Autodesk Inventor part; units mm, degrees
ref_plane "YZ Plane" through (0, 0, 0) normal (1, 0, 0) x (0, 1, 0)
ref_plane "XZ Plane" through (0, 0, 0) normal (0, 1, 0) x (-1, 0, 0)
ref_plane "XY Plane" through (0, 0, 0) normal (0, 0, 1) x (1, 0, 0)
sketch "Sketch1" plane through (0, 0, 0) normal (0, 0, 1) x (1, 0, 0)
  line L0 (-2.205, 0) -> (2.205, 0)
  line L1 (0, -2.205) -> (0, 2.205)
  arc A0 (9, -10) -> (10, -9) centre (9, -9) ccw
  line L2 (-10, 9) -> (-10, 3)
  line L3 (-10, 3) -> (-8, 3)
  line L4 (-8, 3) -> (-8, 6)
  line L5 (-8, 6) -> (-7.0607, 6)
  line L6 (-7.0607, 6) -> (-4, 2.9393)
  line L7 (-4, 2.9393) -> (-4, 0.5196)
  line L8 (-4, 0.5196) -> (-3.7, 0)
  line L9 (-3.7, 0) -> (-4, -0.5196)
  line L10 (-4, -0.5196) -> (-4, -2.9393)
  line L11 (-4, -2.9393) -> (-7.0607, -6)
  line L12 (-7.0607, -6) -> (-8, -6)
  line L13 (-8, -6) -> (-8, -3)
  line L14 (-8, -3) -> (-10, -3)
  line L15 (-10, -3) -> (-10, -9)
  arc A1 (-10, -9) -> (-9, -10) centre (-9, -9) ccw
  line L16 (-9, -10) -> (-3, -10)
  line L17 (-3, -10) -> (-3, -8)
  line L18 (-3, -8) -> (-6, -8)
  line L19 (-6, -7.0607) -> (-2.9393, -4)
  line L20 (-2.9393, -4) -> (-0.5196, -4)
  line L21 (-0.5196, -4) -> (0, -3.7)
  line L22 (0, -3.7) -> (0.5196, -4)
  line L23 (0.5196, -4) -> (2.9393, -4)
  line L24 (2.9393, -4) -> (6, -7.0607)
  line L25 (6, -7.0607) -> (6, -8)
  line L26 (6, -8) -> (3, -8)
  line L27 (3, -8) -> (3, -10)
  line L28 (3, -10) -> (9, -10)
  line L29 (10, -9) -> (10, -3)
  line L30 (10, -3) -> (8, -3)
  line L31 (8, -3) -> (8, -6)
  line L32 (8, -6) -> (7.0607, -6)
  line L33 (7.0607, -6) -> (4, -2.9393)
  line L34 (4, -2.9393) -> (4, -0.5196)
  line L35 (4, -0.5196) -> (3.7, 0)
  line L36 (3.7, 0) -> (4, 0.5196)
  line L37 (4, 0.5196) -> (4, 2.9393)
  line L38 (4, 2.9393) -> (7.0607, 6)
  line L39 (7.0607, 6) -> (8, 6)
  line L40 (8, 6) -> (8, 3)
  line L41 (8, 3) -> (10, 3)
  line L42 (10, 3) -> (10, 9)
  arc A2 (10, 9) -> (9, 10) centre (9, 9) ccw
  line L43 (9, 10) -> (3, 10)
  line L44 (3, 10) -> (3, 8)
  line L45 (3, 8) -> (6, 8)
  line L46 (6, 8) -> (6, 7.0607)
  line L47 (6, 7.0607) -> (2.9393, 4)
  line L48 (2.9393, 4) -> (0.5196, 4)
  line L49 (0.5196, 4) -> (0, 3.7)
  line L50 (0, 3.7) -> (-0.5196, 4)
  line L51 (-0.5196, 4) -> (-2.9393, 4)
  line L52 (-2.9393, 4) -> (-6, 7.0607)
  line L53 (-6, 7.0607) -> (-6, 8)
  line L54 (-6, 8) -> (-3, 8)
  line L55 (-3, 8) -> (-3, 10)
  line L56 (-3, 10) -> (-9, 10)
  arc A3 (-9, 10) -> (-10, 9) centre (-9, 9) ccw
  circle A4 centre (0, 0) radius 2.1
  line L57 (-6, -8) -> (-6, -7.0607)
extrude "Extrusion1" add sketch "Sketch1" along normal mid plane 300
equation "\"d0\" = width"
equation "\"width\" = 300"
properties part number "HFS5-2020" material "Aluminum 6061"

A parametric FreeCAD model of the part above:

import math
import FreeCAD as App
import Part
import Sketcher
Q = App.Units.Quantity

doc = App.newDocument("Part")
body = doc.addObject("PartDesign::Body", "Body")

sketch1 = body.newObject("Sketcher::SketchObject", "Sketch")
sketch1.AttachmentSupport = (doc.getObject("XY_Plane"), [""])
sketch1.MapMode = "FlatFace"
sketch1.addGeometry([
    Part.LineSegment(App.Vector(3, -10, 0), App.Vector(9, -10, 0)),
    Part.ArcOfCircle(Part.Circle(App.Vector(9, -9, 0), App.Vector(0, 0, 1), 1), math.radians(-90), math.radians(0)),
    Part.LineSegment(App.Vector(10, -9, 0), App.Vector(10, -3, 0)),
    Part.LineSegment(App.Vector(10, -3, 0), App.Vector(8, -3, 0)),
    Part.LineSegment(App.Vector(8, -3, 0), App.Vector(8, -6, 0)),
    Part.LineSegment(App.Vector(8, -6, 0), App.Vector(7.1, -6, 0)),
    Part.LineSegment(App.Vector(7.1, -6, 0), App.Vector(4, -2.9, 0)),
    Part.LineSegment(App.Vector(4, -2.9, 0), App.Vector(4, -0.5, 0)),
    Part.LineSegment(App.Vector(4, -0.5, 0), App.Vector(3.7, 0, 0)),
    Part.LineSegment(App.Vector(3.7, 0, 0), App.Vector(4, 0.5, 0)),
    Part.LineSegment(App.Vector(4, 0.5, 0), App.Vector(4, 2.9, 0)),
    Part.LineSegment(App.Vector(4, 2.9, 0), App.Vector(7.1, 6, 0)),
    Part.LineSegment(App.Vector(7.1, 6, 0), App.Vector(8, 6, 0)),
    Part.LineSegment(App.Vector(8, 6, 0), App.Vector(8, 3, 0)),
    Part.LineSegment(App.Vector(8, 3, 0), App.Vector(10, 3, 0)),
    Part.LineSegment(App.Vector(10, 3, 0), App.Vector(10, 9, 0)),
    Part.ArcOfCircle(Part.Circle(App.Vector(9, 9, 0), App.Vector(0, 0, 1), 1), math.radians(0), math.radians(90)),
    Part.LineSegment(App.Vector(9, 10, 0), App.Vector(3, 10, 0)),
    Part.LineSegment(App.Vector(3, 10, 0), App.Vector(3, 8, 0)),
    Part.LineSegment(App.Vector(3, 8, 0), App.Vector(6, 8, 0)),
    Part.LineSegment(App.Vector(6, 8, 0), App.Vector(6, 7.1, 0)),
    Part.LineSegment(App.Vector(6, 7.1, 0), App.Vector(2.9, 4, 0)),
    Part.LineSegment(App.Vector(2.9, 4, 0), App.Vector(0.5, 4, 0)),
    Part.LineSegment(App.Vector(0.5, 4, 0), App.Vector(0, 3.7, 0)),
    Part.LineSegment(App.Vector(0, 3.7, 0), App.Vector(-0.5, 4, 0)),
    Part.LineSegment(App.Vector(-0.5, 4, 0), App.Vector(-2.9, 4, 0)),
    Part.LineSegment(App.Vector(-2.9, 4, 0), App.Vector(-6, 7.1, 0)),
    Part.LineSegment(App.Vector(-6, 7.1, 0), App.Vector(-6, 8, 0)),
    Part.LineSegment(App.Vector(-6, 8, 0), App.Vector(-3, 8, 0)),
    Part.LineSegment(App.Vector(-3, 8, 0), App.Vector(-3, 10, 0)),
    Part.LineSegment(App.Vector(-3, 10, 0), App.Vector(-9, 10, 0)),
    Part.ArcOfCircle(Part.Circle(App.Vector(-9, 9, 0), App.Vector(0, 0, 1), 1), math.radians(90), math.radians(180)),
    Part.LineSegment(App.Vector(-10, 9, 0), App.Vector(-10, 3, 0)),
    Part.LineSegment(App.Vector(-10, 3, 0), App.Vector(-8, 3, 0)),
    Part.LineSegment(App.Vector(-8, 3, 0), App.Vector(-8, 6, 0)),
    Part.LineSegment(App.Vector(-8, 6, 0), App.Vector(-7.1, 6, 0)),
    Part.LineSegment(App.Vector(-7.1, 6, 0), App.Vector(-4, 2.9, 0)),
    Part.LineSegment(App.Vector(-4, 2.9, 0), App.Vector(-4, 0.5, 0)),
    Part.LineSegment(App.Vector(-4, 0.5, 0), App.Vector(-3.7, 0, 0)),
    Part.LineSegment(App.Vector(-3.7, 0, 0), App.Vector(-4, -0.5, 0)),
    Part.LineSegment(App.Vector(-4, -0.5, 0), App.Vector(-4, -2.9, 0)),
    Part.LineSegment(App.Vector(-4, -2.9, 0), App.Vector(-7.1, -6, 0)),
    Part.LineSegment(App.Vector(-7.1, -6, 0), App.Vector(-8, -6, 0)),
    Part.LineSegment(App.Vector(-8, -6, 0), App.Vector(-8, -3, 0)),
    Part.LineSegment(App.Vector(-8, -3, 0), App.Vector(-10, -3, 0)),
    Part.LineSegment(App.Vector(-10, -3, 0), App.Vector(-10, -9, 0)),
    Part.ArcOfCircle(Part.Circle(App.Vector(-9, -9, 0), App.Vector(0, 0, 1), 1), math.radians(180), math.radians(270)),
    Part.LineSegment(App.Vector(-9, -10, 0), App.Vector(-3, -10, 0)),
    Part.LineSegment(App.Vector(-3, -10, 0), App.Vector(-3, -8, 0)),
    Part.LineSegment(App.Vector(-3, -8, 0), App.Vector(-6, -8, 0)),
    Part.LineSegment(App.Vector(-6, -8, 0), App.Vector(-6, -7.1, 0)),
    Part.LineSegment(App.Vector(-6, -7.1, 0), App.Vector(-2.9, -4, 0)),
    Part.LineSegment(App.Vector(-2.9, -4, 0), App.Vector(-0.5, -4, 0)),
    Part.LineSegment(App.Vector(-0.5, -4, 0), App.Vector(0, -3.7, 0)),
    Part.LineSegment(App.Vector(0, -3.7, 0), App.Vector(0.5, -4, 0)),
    Part.LineSegment(App.Vector(0.5, -4, 0), App.Vector(2.9, -4, 0)),
    Part.LineSegment(App.Vector(2.9, -4, 0), App.Vector(6, -7.1, 0)),
    Part.LineSegment(App.Vector(6, -7.1, 0), App.Vector(6, -8, 0)),
    Part.LineSegment(App.Vector(6, -8, 0), App.Vector(3, -8, 0)),
    Part.LineSegment(App.Vector(3, -8, 0), App.Vector(3, -10, 0)),
    Part.Circle(App.Vector(0, 0, 0), App.Vector(0, 0, 1), 2.1),
], False)
sketch1.addConstraint([
    Sketcher.Constraint("Tangent", 0, 2, 1, 1),
    Sketcher.Constraint("Tangent", 1, 2, 2, 1),
    Sketcher.Constraint("Coincident", 2, 2, 3, 1),
    Sketcher.Constraint("Coincident", 3, 2, 4, 1),
    Sketcher.Constraint("Coincident", 4, 2, 5, 1),
    Sketcher.Constraint("Coincident", 5, 2, 6, 1),
    Sketcher.Constraint("Coincident", 6, 2, 7, 1),
    Sketcher.Constraint("Coincident", 7, 2, 8, 1),
    Sketcher.Constraint("Coincident", 8, 2, 9, 1),
    Sketcher.Constraint("Coincident", 9, 2, 10, 1),
    Sketcher.Constraint("Coincident", 10, 2, 11, 1),
    Sketcher.Constraint("Coincident", 11, 2, 12, 1),
    Sketcher.Constraint("Coincident", 12, 2, 13, 1),
    Sketcher.Constraint("Coincident", 13, 2, 14, 1),
    Sketcher.Constraint("Coincident", 14, 2, 15, 1),
    Sketcher.Constraint("Tangent", 15, 2, 16, 1),
    Sketcher.Constraint("Tangent", 16, 2, 17, 1),
    Sketcher.Constraint("Coincident", 17, 2, 18, 1),
    Sketcher.Constraint("Coincident", 18, 2, 19, 1),
    Sketcher.Constraint("Coincident", 19, 2, 20, 1),
    Sketcher.Constraint("Coincident", 20, 2, 21, 1),
    Sketcher.Constraint("Coincident", 21, 2, 22, 1),
    Sketcher.Constraint("Coincident", 22, 2, 23, 1),
    Sketcher.Constraint("Coincident", 23, 2, 24, 1),
    Sketcher.Constraint("Coincident", 24, 2, 25, 1),
    Sketcher.Constraint("Coincident", 25, 2, 26, 1),
    Sketcher.Constraint("Coincident", 26, 2, 27, 1),
    Sketcher.Constraint("Coincident", 27, 2, 28, 1),
    Sketcher.Constraint("Coincident", 28, 2, 29, 1),
    Sketcher.Constraint("Coincident", 29, 2, 30, 1),
    Sketcher.Constraint("Tangent", 30, 2, 31, 1),
    Sketcher.Constraint("Tangent", 31, 2, 32, 1),
    Sketcher.Constraint("Coincident", 32, 2, 33, 1),
    Sketcher.Constraint("Coincident", 33, 2, 34, 1),
    Sketcher.Constraint("Coincident", 34, 2, 35, 1),
    Sketcher.Constraint("Coincident", 35, 2, 36, 1),
    Sketcher.Constraint("Coincident", 36, 2, 37, 1),
    Sketcher.Constraint("Coincident", 37, 2, 38, 1),
    Sketcher.Constraint("Coincident", 38, 2, 39, 1),
    Sketcher.Constraint("Coincident", 39, 2, 40, 1),
    Sketcher.Constraint("Coincident", 40, 2, 41, 1),
    Sketcher.Constraint("Coincident", 41, 2, 42, 1),
    Sketcher.Constraint("Coincident", 42, 2, 43, 1),
    Sketcher.Constraint("Coincident", 43, 2, 44, 1),
    Sketcher.Constraint("Coincident", 44, 2, 45, 1),
    Sketcher.Constraint("Tangent", 45, 2, 46, 1),
    Sketcher.Constraint("Tangent", 46, 2, 47, 1),
    Sketcher.Constraint("Coincident", 47, 2, 48, 1),
    Sketcher.Constraint("Coincident", 48, 2, 49, 1),
    Sketcher.Constraint("Coincident", 49, 2, 50, 1),
    Sketcher.Constraint("Coincident", 50, 2, 51, 1),
    Sketcher.Constraint("Coincident", 51, 2, 52, 1),
    Sketcher.Constraint("Coincident", 52, 2, 53, 1),
    Sketcher.Constraint("Coincident", 53, 2, 54, 1),
    Sketcher.Constraint("Coincident", 54, 2, 55, 1),
    Sketcher.Constraint("Coincident", 55, 2, 56, 1),
    Sketcher.Constraint("Coincident", 56, 2, 57, 1),
    Sketcher.Constraint("Coincident", 57, 2, 58, 1),
    Sketcher.Constraint("Coincident", 58, 2, 59, 1),
    Sketcher.Constraint("Coincident", 59, 2, 0, 1),
    Sketcher.Constraint("Horizontal", 0),
    Sketcher.Constraint("Vertical", 2),
    Sketcher.Constraint("Horizontal", 3),
    Sketcher.Constraint("Vertical", 4),
    Sketcher.Constraint("Horizontal", 5),
    Sketcher.Constraint("Vertical", 7),
    Sketcher.Constraint("Vertical", 10),
    Sketcher.Constraint("Horizontal", 12),
    Sketcher.Constraint("Vertical", 13),
    Sketcher.Constraint("Horizontal", 14),
    Sketcher.Constraint("Vertical", 15),
    Sketcher.Constraint("Horizontal", 17),
    Sketcher.Constraint("Vertical", 18),
    Sketcher.Constraint("Horizontal", 19),
    Sketcher.Constraint("Vertical", 20),
    Sketcher.Constraint("Horizontal", 22),
    Sketcher.Constraint("Horizontal", 25),
    Sketcher.Constraint("Vertical", 27),
    Sketcher.Constraint("Horizontal", 28),
    Sketcher.Constraint("Vertical", 29),
    Sketcher.Constraint("Horizontal", 30),
    Sketcher.Constraint("Vertical", 32),
    Sketcher.Constraint("Horizontal", 33),
    Sketcher.Constraint("Vertical", 34),
    Sketcher.Constraint("Horizontal", 35),
    Sketcher.Constraint("Vertical", 37),
    Sketcher.Constraint("Vertical", 40),
    Sketcher.Constraint("Horizontal", 42),
    Sketcher.Constraint("Vertical", 43),
    Sketcher.Constraint("Horizontal", 44),
    Sketcher.Constraint("Vertical", 45),
    Sketcher.Constraint("Horizontal", 47),
    Sketcher.Constraint("Vertical", 48),
    Sketcher.Constraint("Horizontal", 49),
    Sketcher.Constraint("Vertical", 50),
    Sketcher.Constraint("Horizontal", 52),
    Sketcher.Constraint("Horizontal", 55),
    Sketcher.Constraint("Vertical", 57),
    Sketcher.Constraint("Horizontal", 58),
    Sketcher.Constraint("Vertical", 59),
    Sketcher.Constraint("Coincident", 60, 3, -1, 1),
    Sketcher.Constraint("Equal", 1, 16),
    Sketcher.Constraint("Equal", 16, 31),
    Sketcher.Constraint("Equal", 31, 46),
    Sketcher.Constraint("Symmetric", 1, 3, 31, 3, -1, 1),
    Sketcher.Constraint("Symmetric", 16, 3, 46, 3, -1, 1),
    Sketcher.Constraint("Symmetric", 3, 2, 33, 2, -1, 1),
    Sketcher.Constraint("Symmetric", 5, 2, 35, 2, -1, 1),
    Sketcher.Constraint("Symmetric", 6, 2, 36, 2, -1, 1),
    Sketcher.Constraint("Symmetric", 8, 2, 38, 2, -1, 1),
    Sketcher.Constraint("Symmetric", 9, 2, 39, 2, -1, 1),
    Sketcher.Constraint("Symmetric", 11, 2, 41, 2, -1, 1),
    Sketcher.Constraint("Symmetric", 13, 2, 43, 2, -1, 1),
    Sketcher.Constraint("Symmetric", 18, 2, 48, 2, -1, 1),
    Sketcher.Constraint("Symmetric", 20, 2, 50, 2, -1, 1),
    Sketcher.Constraint("Symmetric", 21, 2, 51, 2, -1, 1),
    Sketcher.Constraint("Symmetric", 23, 2, 53, 2, -1, 1),
    Sketcher.Constraint("Symmetric", 24, 2, 54, 2, -1, 1),
    Sketcher.Constraint("Symmetric", 26, 2, 56, 2, -1, 1),
    Sketcher.Constraint("Symmetric", 28, 2, 58, 2, -1, 1),
    Sketcher.Constraint("Symmetric", 16, 3, 31, 3, -2),
    Sketcher.Constraint("Symmetric", 22, 2, 24, 2, -2),
    Sketcher.Constraint("Symmetric", 20, 2, 26, 2, -2),
    Sketcher.Constraint("Symmetric", 18, 2, 28, 2, -2),
    Sketcher.Constraint("Symmetric", 13, 2, 33, 2, -2),
    Sketcher.Constraint("Symmetric", 11, 2, 35, 2, -2),
    Sketcher.Constraint("Symmetric", 10, 2, 36, 2, -2),
    Sketcher.Constraint("PointOnObject", 8, 2, -1),
    Sketcher.Constraint("PointOnObject", 23, 2, -2),
    Sketcher.Constraint("Perpendicular", 6, 11),
    Sketcher.Constraint("Parallel", 11, 21),
    Sketcher.Constraint("Perpendicular", 8, 23),
    Sketcher.Constraint("Perpendicular", 9, 24),
    Sketcher.Constraint("Perpendicular", 21, 26),
    Sketcher.Constraint("Perpendicular", 23, 38),
    Sketcher.Constraint("Perpendicular", 36, 41),
    Sketcher.Constraint("Perpendicular", 38, 53),
    Sketcher.Constraint("Perpendicular", 51, 56),
    Sketcher.Constraint("Equal", 47, 2),
    Sketcher.Constraint("Equal", 58, 4),
    Sketcher.Constraint("Equal", 55, 7),
    Sketcher.Constraint("Equal", 44, 18),
    Sketcher.Constraint("Equal", 42, 20),
    Sketcher.Constraint("Equal", 11, 21),
    Sketcher.Constraint("Equal", 9, 23),
    Sketcher.Constraint("Radius", 1, 1.0),
    Sketcher.Constraint("Diameter", 60, 4.2),
    Sketcher.Constraint("DistanceX", 0, 1, 0, 2, 6.0),
    Sketcher.Constraint("DistanceX", 3, 2, 3, 1, 2.0),
    Sketcher.Constraint("DistanceX", 19, 1, 19, 2, 3.0),
    Sketcher.Constraint("Angle", 8, Q("120.0007 deg")),
    Sketcher.Constraint("DistanceX", -1, 1, 1, 3, 9.0),
    Sketcher.Constraint("DistanceX", -1, 1, 6, 2, 4.0),
    Sketcher.Constraint("Distance", 8, 0.6),
    Sketcher.Constraint("DistanceX", 5, 2, 5, 1, 0.9393),
])
pad1 = body.newObject("PartDesign::Pad", "Pad")
pad1.Profile = sketch1
pad1.Length = 300
pad1.Midplane = True

doc.recompute()
